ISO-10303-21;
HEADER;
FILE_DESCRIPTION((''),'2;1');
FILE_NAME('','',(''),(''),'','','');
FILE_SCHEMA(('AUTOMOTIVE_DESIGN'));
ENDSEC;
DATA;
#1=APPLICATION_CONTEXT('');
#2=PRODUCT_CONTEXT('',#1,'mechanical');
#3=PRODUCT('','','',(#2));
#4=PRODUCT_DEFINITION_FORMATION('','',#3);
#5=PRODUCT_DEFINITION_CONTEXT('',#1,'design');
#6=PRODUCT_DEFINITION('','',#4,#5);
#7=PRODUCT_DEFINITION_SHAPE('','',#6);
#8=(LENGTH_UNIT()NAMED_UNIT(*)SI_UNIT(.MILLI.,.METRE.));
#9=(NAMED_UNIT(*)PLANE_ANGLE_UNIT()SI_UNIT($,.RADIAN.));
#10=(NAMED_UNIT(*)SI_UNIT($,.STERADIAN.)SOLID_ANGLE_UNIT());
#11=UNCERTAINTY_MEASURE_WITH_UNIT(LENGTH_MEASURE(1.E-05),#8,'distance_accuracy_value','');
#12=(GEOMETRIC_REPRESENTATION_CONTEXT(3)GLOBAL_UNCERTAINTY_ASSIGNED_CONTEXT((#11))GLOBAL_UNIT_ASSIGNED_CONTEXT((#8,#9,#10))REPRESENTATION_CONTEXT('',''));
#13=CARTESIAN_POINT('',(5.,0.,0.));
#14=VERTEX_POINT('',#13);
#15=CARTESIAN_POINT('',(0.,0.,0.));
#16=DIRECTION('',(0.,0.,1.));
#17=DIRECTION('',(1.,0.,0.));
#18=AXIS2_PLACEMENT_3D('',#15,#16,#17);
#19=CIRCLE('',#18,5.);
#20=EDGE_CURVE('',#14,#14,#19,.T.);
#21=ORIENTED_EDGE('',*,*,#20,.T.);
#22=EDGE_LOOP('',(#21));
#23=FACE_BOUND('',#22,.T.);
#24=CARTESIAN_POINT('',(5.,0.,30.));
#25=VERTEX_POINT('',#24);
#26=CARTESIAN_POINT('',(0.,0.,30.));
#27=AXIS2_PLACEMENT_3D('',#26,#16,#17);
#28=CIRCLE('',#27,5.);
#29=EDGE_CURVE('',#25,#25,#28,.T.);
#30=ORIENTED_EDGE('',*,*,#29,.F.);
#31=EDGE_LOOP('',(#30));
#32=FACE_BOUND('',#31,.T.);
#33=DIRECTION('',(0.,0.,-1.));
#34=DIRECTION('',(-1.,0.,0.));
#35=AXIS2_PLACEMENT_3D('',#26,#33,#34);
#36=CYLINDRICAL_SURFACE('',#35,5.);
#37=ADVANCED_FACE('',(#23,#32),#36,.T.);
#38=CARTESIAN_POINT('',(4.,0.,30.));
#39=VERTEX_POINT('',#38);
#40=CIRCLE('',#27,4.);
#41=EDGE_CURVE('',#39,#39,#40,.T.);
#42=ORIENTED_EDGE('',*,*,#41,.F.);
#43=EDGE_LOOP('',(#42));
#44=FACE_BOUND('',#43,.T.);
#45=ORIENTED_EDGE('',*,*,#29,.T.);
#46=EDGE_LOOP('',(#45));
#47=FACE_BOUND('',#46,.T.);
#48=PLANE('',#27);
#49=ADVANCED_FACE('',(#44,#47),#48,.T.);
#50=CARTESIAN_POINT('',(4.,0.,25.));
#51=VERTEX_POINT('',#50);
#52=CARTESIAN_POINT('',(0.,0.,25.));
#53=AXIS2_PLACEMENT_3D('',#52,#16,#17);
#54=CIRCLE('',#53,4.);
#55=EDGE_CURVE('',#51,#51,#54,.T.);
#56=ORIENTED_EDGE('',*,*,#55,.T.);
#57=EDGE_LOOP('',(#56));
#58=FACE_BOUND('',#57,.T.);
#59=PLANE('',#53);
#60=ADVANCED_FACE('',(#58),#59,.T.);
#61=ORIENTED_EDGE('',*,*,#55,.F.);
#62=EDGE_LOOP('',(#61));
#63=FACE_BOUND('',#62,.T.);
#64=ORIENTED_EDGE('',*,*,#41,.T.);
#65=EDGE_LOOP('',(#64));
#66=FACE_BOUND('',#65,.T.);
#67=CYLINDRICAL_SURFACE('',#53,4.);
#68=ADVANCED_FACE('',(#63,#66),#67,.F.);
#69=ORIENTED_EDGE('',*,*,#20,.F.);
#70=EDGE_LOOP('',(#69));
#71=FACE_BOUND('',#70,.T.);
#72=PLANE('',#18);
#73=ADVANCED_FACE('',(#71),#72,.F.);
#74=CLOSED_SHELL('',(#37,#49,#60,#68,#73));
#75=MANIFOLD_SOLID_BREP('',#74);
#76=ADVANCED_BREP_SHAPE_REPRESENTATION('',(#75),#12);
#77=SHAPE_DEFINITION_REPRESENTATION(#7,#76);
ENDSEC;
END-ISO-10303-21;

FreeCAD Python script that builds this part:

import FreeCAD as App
import Part
import Sketcher

doc = App.newDocument("Part")
body = doc.addObject("PartDesign::Body", "Body")

sketch1 = doc.addObject("Sketcher::SketchObject", "Sketch")
body.addObject(sketch1)
sketch1.AttachmentSupport = (doc.XY_Plane, [""])
sketch1.MapMode = "FlatFace"
sketch1.addGeometry(Part.Circle(App.Vector(0, 0, 0), App.Vector(0, 0, 1), 5), False)
sketch1.addConstraint([
    Sketcher.Constraint("Coincident", 0, 3, -1, 1),
    Sketcher.Constraint("Diameter", 0, 10.0),
])
pad1 = doc.addObject("PartDesign::Pad", "Pad")
body.addObject(pad1)
pad1.Profile = sketch1
pad1.Length = 30

sketch2 = doc.addObject("Sketcher::SketchObject", "Sketch001")
body.addObject(sketch2)
sketch2.AttachmentSupport = (doc.XY_Plane, [""])
sketch2.MapMode = "FlatFace"
sketch2.AttachmentOffset = App.Placement(App.Vector(0, 0, 30), App.Rotation())
sketch2.addGeometry(Part.Circle(App.Vector(0, 0, 0), App.Vector(0, 0, 1), 4), False)
sketch2.addConstraint([
    Sketcher.Constraint("Coincident", 0, 3, -1, 1),
    Sketcher.Constraint("Diameter", 0, 8.0),
])
pocket1 = doc.addObject("PartDesign::Pocket", "Pocket")
body.addObject(pocket1)
pocket1.Profile = sketch2
pocket1.Length = 5

doc.recompute()
